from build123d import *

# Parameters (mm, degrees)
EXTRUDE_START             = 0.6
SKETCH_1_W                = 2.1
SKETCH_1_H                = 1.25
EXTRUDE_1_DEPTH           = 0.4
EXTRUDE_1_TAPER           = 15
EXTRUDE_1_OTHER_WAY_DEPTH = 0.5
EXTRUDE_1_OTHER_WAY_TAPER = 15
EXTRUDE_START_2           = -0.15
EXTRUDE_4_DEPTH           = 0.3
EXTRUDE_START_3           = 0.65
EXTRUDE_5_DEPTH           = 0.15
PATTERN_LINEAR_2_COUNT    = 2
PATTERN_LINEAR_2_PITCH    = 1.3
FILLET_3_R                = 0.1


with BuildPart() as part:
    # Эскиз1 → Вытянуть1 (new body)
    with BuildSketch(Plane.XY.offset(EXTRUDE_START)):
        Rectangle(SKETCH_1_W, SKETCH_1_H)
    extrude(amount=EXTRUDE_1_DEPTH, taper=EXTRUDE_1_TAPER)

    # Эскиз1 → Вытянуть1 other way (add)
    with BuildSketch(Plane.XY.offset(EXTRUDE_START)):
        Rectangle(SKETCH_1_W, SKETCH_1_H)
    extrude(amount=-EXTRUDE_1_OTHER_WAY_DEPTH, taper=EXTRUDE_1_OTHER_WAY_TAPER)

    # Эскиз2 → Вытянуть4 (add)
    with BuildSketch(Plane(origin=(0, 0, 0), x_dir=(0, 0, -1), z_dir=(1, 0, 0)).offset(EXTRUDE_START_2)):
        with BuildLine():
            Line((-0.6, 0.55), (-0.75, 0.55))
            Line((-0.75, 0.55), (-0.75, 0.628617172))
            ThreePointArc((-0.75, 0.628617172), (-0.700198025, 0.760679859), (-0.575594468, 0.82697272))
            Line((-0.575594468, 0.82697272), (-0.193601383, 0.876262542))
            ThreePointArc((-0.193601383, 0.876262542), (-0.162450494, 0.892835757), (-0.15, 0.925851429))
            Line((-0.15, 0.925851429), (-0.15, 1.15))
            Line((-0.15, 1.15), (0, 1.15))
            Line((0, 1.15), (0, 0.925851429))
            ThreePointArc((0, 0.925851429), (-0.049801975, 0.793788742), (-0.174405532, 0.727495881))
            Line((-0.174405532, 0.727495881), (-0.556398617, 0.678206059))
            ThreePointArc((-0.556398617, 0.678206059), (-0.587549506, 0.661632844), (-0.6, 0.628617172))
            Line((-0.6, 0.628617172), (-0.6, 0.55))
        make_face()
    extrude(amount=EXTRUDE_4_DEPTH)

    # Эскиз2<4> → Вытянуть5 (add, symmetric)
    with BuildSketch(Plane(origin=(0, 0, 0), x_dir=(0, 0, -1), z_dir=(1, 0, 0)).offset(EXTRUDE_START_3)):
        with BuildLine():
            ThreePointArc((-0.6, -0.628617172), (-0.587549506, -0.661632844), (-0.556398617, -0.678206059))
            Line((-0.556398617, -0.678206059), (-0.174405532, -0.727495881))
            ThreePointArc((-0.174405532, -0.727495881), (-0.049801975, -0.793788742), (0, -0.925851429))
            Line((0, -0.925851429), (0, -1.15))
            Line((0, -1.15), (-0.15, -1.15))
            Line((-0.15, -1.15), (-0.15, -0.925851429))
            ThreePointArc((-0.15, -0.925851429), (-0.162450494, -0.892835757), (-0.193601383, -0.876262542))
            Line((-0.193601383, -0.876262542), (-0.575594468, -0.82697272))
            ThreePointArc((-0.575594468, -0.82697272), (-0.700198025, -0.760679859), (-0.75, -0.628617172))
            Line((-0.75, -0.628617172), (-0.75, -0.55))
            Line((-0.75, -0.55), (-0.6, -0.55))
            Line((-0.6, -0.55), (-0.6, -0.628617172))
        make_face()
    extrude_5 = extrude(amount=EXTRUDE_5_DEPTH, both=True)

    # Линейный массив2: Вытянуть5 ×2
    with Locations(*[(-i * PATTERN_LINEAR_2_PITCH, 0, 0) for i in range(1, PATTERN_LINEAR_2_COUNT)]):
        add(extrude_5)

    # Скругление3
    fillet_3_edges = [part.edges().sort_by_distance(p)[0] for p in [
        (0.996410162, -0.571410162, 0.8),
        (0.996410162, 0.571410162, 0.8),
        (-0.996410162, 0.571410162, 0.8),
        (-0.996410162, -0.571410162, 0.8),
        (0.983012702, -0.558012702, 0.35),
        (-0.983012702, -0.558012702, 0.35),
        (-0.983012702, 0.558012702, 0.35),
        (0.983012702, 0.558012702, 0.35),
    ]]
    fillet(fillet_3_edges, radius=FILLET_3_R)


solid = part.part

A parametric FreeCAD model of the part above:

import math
import FreeCAD as App
import Part
import Sketcher
Q = App.Units.Quantity


def edges_at(feature, points):
    """Names of the edges that pass closest to the given points."""
    edges = feature.Shape.Edges
    near = lambda p: min(range(len(edges)), key=lambda i: edges[i].distToShape(Part.Vertex(*p))[0])
    return sorted({f"Edge{near(p) + 1}" for p in points})


def add_polygon(sketch, points):
    """Adds a closed chain of lines whose ends are joined by coincident constraints."""
    first, n = sketch.GeometryCount, len(points)
    for a, b in zip(points, points[1:] + points[:1]):
        sketch.addGeometry(Part.LineSegment(App.Vector(*a, 0), App.Vector(*b, 0)), False)
    for i in range(n):
        sketch.addConstraint(Sketcher.Constraint("Coincident", first + i, 2, first + (i + 1) % n, 1))

doc = App.newDocument("Part")
body = doc.addObject("PartDesign::Body", "Body")

# Sketch on XY plane
sketch1 = doc.addObject("Sketcher::SketchObject", "Sketch")
body.addObject(sketch1)
sketch1.AttachmentSupport = (doc.XY_Plane, [""])
sketch1.MapMode = "FlatFace"
sketch1.AttachmentOffset = App.Placement(App.Vector(0, 0, 0.6), App.Rotation())
add_polygon(sketch1, [(-1.05, 0.625), (-1.05, -0.625), (1.05, -0.625), (1.05, 0.625)])  # lines 0-3
sketch1.addConstraint([
    Sketcher.Constraint("Vertical", 0),
    Sketcher.Constraint("Horizontal", 1),
    Sketcher.Constraint("Vertical", 2),
    Sketcher.Constraint("Horizontal", 3),
    Sketcher.Constraint("Symmetric", 0, 2, 2, 2, -1, 1),
    Sketcher.Constraint("DistanceX", 1, 1, 1, 2, Q("2.1 mm")),
    Sketcher.Constraint("DistanceY", 0, 2, 0, 1, Q("1.25 mm")),
])
pad1 = doc.addObject("PartDesign::Pad", "Pad")
body.addObject(pad1)
pad1.Profile = sketch1
pad1.Length = 0.4
pad1.TaperAngle = -15

# Sketch on XY plane
sketch2 = doc.addObject("Sketcher::SketchObject", "Sketch001")
body.addObject(sketch2)
sketch2.AttachmentSupport = (doc.XY_Plane, [""])
sketch2.MapMode = "FlatFace"
sketch2.AttachmentOffset = App.Placement(App.Vector(0, 0, 0.6), App.Rotation())
add_polygon(sketch2, [(-1.05, 0.625), (-1.05, -0.625), (1.05, -0.625), (1.05, 0.625)])  # lines 0-3
sketch2.addConstraint([
    Sketcher.Constraint("Vertical", 0),
    Sketcher.Constraint("Horizontal", 1),
    Sketcher.Constraint("Vertical", 2),
    Sketcher.Constraint("Horizontal", 3),
    Sketcher.Constraint("Symmetric", 0, 2, 2, 2, -1, 1),
    Sketcher.Constraint("DistanceX", 1, 1, 1, 2, Q("2.1 mm")),
    Sketcher.Constraint("DistanceY", 0, 2, 0, 1, Q("1.25 mm")),
])
pad2 = doc.addObject("PartDesign::Pad", "Pad001")
body.addObject(pad2)
pad2.Profile = sketch2
pad2.Length = 0.5
pad2.Reversed = True
pad2.TaperAngle = -15

# Sketch on YZ plane
sketch3 = doc.addObject("Sketcher::SketchObject", "Sketch002")
body.addObject(sketch3)
sketch3.AttachmentSupport = (doc.YZ_Plane, [""])
sketch3.MapMode = "FlatFace"
sketch3.AttachmentOffset = App.Placement(App.Vector(0, 0, -0.15), App.Rotation())
sketch3.addGeometry([
    Part.LineSegment(App.Vector(0.55, 0.75, 0), App.Vector(0.55, 0.6, 0)),  # 0
    Part.LineSegment(App.Vector(0.55, 0.6, 0), App.Vector(0.628617, 0.6, 0)),  # 1
    Part.ArcOfCircle(Part.Circle(App.Vector(0.628617, 0.55, 0), App.Vector(0, 0, 1), 0.05), math.radians(7.352437), math.radians(90)),  # 2
    Part.LineSegment(App.Vector(0.678206, 0.556399, 0), App.Vector(0.727496, 0.174406, 0)),  # 3
    Part.ArcOfCircle(Part.Circle(App.Vector(0.925851, 0.2, 0), App.Vector(0, 0, 1), 0.2), math.radians(-172.647562), math.radians(-90)),  # 4
    Part.LineSegment(App.Vector(0.925851, 0, 0), App.Vector(1.15, 0, 0)),  # 5
    Part.LineSegment(App.Vector(1.15, 0, 0), App.Vector(1.15, 0.15, 0)),  # 6
    Part.LineSegment(App.Vector(1.15, 0.15, 0), App.Vector(0.925851, 0.15, 0)),  # 7
    Part.ArcOfCircle(Part.Circle(App.Vector(0.925851, 0.2, 0), App.Vector(0, 0, 1), 0.05), math.radians(-172.647563), math.radians(-90)),  # 8
    Part.LineSegment(App.Vector(0.876263, 0.193601, 0), App.Vector(0.826973, 0.575594, 0)),  # 9
    Part.ArcOfCircle(Part.Circle(App.Vector(0.628617, 0.55, 0), App.Vector(0, 0, 1), 0.2), math.radians(7.352438), math.radians(90)),  # 10
    Part.LineSegment(App.Vector(0.628617, 0.75, 0), App.Vector(0.55, 0.75, 0)),  # 11
], False)
sketch3.addConstraint([
    Sketcher.Constraint("Coincident", 0, 2, 1, 1),
    Sketcher.Constraint("Tangent", 1, 2, 2, 2),
    Sketcher.Constraint("Tangent", 2, 1, 3, 1),
    Sketcher.Constraint("Tangent", 3, 2, 4, 1),
    Sketcher.Constraint("Tangent", 4, 2, 5, 1),
    Sketcher.Constraint("Coincident", 5, 2, 6, 1),
    Sketcher.Constraint("Coincident", 6, 2, 7, 1),
    Sketcher.Constraint("Tangent", 7, 2, 8, 2),
    Sketcher.Constraint("Tangent", 8, 1, 9, 1),
    Sketcher.Constraint("Tangent", 9, 2, 10, 1),
    Sketcher.Constraint("Tangent", 10, 2, 11, 1),
    Sketcher.Constraint("Coincident", 11, 2, 0, 1),
    Sketcher.Constraint("Vertical", 0),
    Sketcher.Constraint("Horizontal", 1),
    Sketcher.Constraint("Horizontal", 5),
    Sketcher.Constraint("Vertical", 6),
    Sketcher.Constraint("Horizontal", 7),
    Sketcher.Constraint("Horizontal", 11),
    Sketcher.Constraint("Coincident", 8, 3, 4, 3),
    Sketcher.Constraint("Coincident", 10, 3, 2, 3),
    Sketcher.Constraint("Equal", 2, 8),
    Sketcher.Constraint("Equal", 4, 10),
    Sketcher.Constraint("PointOnObject", 4, 2, -1),
    Sketcher.Constraint("Radius", 4, Q("0.2 mm")),
    Sketcher.Constraint("Radius", 2, Q("0.05 mm")),
    Sketcher.Constraint("DistanceY", -1, 1, 0, 2, Q("0.6 mm")),
    Sketcher.Constraint("DistanceX", -1, 1, 0, 2, Q("0.55 mm")),
    Sketcher.Constraint("DistanceX", -1, 1, 5, 2, Q("1.15 mm")),
    Sketcher.Constraint("DistanceX", 5, 1, 5, 2, Q("0.224149 mm")),
    Sketcher.Constraint("DistanceY", -1, 1, 2, 1, Q("0.556399 mm")),
])
pad3 = doc.addObject("PartDesign::Pad", "Pad002")
body.addObject(pad3)
pad3.Profile = sketch3
pad3.Length = 0.3

# Sketch on YZ plane
sketch4 = doc.addObject("Sketcher::SketchObject", "Sketch003")
body.addObject(sketch4)
sketch4.AttachmentSupport = (doc.YZ_Plane, [""])
sketch4.MapMode = "FlatFace"
sketch4.AttachmentOffset = App.Placement(App.Vector(0, 0, 0.65), App.Rotation())
sketch4.addGeometry([
    Part.ArcOfCircle(Part.Circle(App.Vector(-0.628617, 0.55, 0), App.Vector(0, 0, 1), 0.05), math.radians(90), math.radians(172.647563)),  # 0
    Part.LineSegment(App.Vector(-0.628617, 0.6, 0), App.Vector(-0.55, 0.6, 0)),  # 1
    Part.LineSegment(App.Vector(-0.55, 0.6, 0), App.Vector(-0.55, 0.75, 0)),  # 2
    Part.LineSegment(App.Vector(-0.55, 0.75, 0), App.Vector(-0.628617, 0.75, 0)),  # 3
    Part.ArcOfCircle(Part.Circle(App.Vector(-0.628617, 0.55, 0), App.Vector(0, 0, 1), 0.2), math.radians(90), math.radians(172.647562)),  # 4
    Part.LineSegment(App.Vector(-0.826973, 0.575594, 0), App.Vector(-0.876263, 0.193601, 0)),  # 5
    Part.ArcOfCircle(Part.Circle(App.Vector(-0.925851, 0.2, 0), App.Vector(0, 0, 1), 0.05), math.radians(-90), math.radians(-7.352437)),  # 6
    Part.LineSegment(App.Vector(-0.925851, 0.15, 0), App.Vector(-1.15, 0.15, 0)),  # 7
    Part.LineSegment(App.Vector(-1.15, 0.15, 0), App.Vector(-1.15, 0, 0)),  # 8
    Part.LineSegment(App.Vector(-1.15, 0, 0), App.Vector(-0.925851, 0, 0)),  # 9
    Part.ArcOfCircle(Part.Circle(App.Vector(-0.925851, 0.2, 0), App.Vector(0, 0, 1), 0.2), math.radians(-90), math.radians(-7.352438)),  # 10
    Part.LineSegment(App.Vector(-0.727496, 0.174406, 0), App.Vector(-0.678206, 0.556399, 0)),  # 11
], False)
sketch4.addConstraint([
    Sketcher.Constraint("Tangent", 0, 1, 1, 1),
    Sketcher.Constraint("Coincident", 1, 2, 2, 1),
    Sketcher.Constraint("Coincident", 2, 2, 3, 1),
    Sketcher.Constraint("Tangent", 3, 2, 4, 1),
    Sketcher.Constraint("Tangent", 4, 2, 5, 1),
    Sketcher.Constraint("Tangent", 5, 2, 6, 2),
    Sketcher.Constraint("Tangent", 6, 1, 7, 1),
    Sketcher.Constraint("Coincident", 7, 2, 8, 1),
    Sketcher.Constraint("Coincident", 8, 2, 9, 1),
    Sketcher.Constraint("Tangent", 9, 2, 10, 1),
    Sketcher.Constraint("Tangent", 10, 2, 11, 1),
    Sketcher.Constraint("Tangent", 11, 2, 0, 2),
    Sketcher.Constraint("Horizontal", 1),
    Sketcher.Constraint("Vertical", 2),
    Sketcher.Constraint("Horizontal", 3),
    Sketcher.Constraint("Horizontal", 7),
    Sketcher.Constraint("Vertical", 8),
    Sketcher.Constraint("Horizontal", 9),
    Sketcher.Constraint("Coincident", 4, 3, 0, 3),
    Sketcher.Constraint("Coincident", 10, 3, 6, 3),
    Sketcher.Constraint("Equal", 0, 6),
    Sketcher.Constraint("Equal", 4, 10),
    Sketcher.Constraint("PointOnObject", 8, 2, -1),
    Sketcher.Constraint("Radius", 4, Q("0.2 mm")),
    Sketcher.Constraint("Radius", 0, Q("0.05 mm")),
    Sketcher.Constraint("DistanceY", -1, 1, 0, 1, Q("0.6 mm")),
    Sketcher.Constraint("DistanceX", 1, 2, -1, 1, Q("0.55 mm")),
    Sketcher.Constraint("DistanceX", 7, 2, -1, 1, Q("1.15 mm")),
    Sketcher.Constraint("DistanceX", 7, 2, 7, 1, Q("0.224149 mm")),
    Sketcher.Constraint("DistanceY", -1, 1, 5, 2, Q("0.193601 mm")),
])
pad4 = doc.addObject("PartDesign::Pad", "Pad003")
body.addObject(pad4)
pad4.Profile = sketch4
pad4.Length = 0.3
pad4.Midplane = True
doc.recompute()

linearpattern = doc.addObject("PartDesign::LinearPattern", "LinearPattern")
body.addObject(linearpattern)
linearpattern.Originals = [pad4]
linearpattern.Direction = (doc.X_Axis, [""])
linearpattern.Mode = "offset"
linearpattern.Offset = 1.3
linearpattern.Occurrences = 2
linearpattern.Reversed = True
body.Tip = linearpattern
doc.recompute()

fillet = doc.addObject("PartDesign::Fillet", "Fillet")
body.addObject(fillet)
fillet.Base = (linearpattern, edges_at(linearpattern, [
    (0.996, -0.571, 0.8),
    (0.996, 0.571, 0.8),
    (-0.996, 0.571, 0.8),
    (-0.996, -0.571, 0.8),
    (0.983, -0.558, 0.35),
    (-0.983, -0.558, 0.35),
    (-0.983, 0.558, 0.35),
    (0.983, 0.558, 0.35),
]))
fillet.Radius = 0.1

doc.recompute()
